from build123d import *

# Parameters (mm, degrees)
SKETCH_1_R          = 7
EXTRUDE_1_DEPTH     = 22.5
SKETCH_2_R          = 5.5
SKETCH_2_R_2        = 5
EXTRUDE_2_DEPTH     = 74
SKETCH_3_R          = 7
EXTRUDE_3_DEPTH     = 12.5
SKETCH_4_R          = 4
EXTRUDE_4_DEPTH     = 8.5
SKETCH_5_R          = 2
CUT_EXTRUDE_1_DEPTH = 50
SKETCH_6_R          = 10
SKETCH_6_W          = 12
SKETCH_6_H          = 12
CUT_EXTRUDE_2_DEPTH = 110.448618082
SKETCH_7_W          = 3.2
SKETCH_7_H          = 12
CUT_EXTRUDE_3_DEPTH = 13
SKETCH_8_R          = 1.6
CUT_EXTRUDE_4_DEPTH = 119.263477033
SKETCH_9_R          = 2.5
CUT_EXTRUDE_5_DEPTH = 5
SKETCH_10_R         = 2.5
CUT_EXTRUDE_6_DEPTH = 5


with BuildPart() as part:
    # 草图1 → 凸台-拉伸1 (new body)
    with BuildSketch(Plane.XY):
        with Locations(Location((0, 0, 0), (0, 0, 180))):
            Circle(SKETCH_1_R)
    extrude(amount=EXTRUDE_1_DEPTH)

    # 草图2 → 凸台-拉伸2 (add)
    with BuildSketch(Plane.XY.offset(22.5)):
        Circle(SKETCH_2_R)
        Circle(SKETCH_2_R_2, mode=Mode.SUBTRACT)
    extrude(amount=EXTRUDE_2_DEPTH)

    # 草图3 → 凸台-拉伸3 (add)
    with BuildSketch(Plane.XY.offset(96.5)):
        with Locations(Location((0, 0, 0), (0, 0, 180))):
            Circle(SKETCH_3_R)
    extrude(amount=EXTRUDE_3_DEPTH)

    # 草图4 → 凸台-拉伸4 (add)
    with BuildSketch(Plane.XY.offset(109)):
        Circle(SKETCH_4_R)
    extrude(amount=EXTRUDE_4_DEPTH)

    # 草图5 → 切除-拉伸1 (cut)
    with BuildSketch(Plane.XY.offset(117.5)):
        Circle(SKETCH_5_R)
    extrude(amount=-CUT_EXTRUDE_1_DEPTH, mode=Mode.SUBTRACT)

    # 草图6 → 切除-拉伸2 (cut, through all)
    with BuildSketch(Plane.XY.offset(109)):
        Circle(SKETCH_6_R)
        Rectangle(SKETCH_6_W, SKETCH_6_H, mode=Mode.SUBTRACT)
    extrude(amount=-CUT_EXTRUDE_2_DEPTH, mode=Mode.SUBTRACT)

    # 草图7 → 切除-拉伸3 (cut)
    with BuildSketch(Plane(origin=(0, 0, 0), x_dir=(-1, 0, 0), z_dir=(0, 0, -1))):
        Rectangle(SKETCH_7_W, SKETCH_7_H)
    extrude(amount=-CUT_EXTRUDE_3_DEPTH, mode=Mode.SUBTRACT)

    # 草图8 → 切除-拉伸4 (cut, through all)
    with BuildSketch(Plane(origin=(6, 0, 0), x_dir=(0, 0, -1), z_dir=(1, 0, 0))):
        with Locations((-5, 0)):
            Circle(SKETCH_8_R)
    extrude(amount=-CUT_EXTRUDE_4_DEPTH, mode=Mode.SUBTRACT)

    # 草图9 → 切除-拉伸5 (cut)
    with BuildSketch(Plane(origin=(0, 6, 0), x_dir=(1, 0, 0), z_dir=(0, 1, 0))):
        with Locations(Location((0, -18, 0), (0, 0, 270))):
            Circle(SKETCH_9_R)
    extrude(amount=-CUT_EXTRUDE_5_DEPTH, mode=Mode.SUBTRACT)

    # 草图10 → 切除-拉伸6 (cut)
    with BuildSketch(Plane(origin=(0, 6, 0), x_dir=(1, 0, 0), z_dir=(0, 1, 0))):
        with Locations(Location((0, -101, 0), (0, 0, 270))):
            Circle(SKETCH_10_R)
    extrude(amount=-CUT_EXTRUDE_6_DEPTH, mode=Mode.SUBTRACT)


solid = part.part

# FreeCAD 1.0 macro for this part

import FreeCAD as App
import Part
import Sketcher


def add_polygon(sketch, points):
    """Adds a closed chain of lines whose ends are joined by coincident constraints."""
    first, n = sketch.GeometryCount, len(points)
    for a, b in zip(points, points[1:] + points[:1]):
        sketch.addGeometry(Part.LineSegment(App.Vector(*a, 0), App.Vector(*b, 0)), False)
    for i in range(n):
        sketch.addConstraint(Sketcher.Constraint("Coincident", first + i, 2, first + (i + 1) % n, 1))

doc = App.newDocument("Part")
body = doc.addObject("PartDesign::Body", "Body")

sketch1 = body.newObject("Sketcher::SketchObject", "Sketch")
sketch1.AttachmentSupport = (doc.getObject("XY_Plane"), [""])
sketch1.MapMode = "FlatFace"
sketch1.addGeometry(Part.Circle(App.Vector(0, 0, 0), App.Vector(0, 0, 1), 7), False)
sketch1.addConstraint([
    Sketcher.Constraint("Coincident", 0, 3, -1, 1),
    Sketcher.Constraint("Diameter", 0, 14.0),
])
pad1 = body.newObject("PartDesign::Pad", "Pad")
pad1.Profile = sketch1
pad1.Length = 22.5

sketch2 = body.newObject("Sketcher::SketchObject", "Sketch001")
sketch2.AttachmentSupport = (doc.getObject("XY_Plane"), [""])
sketch2.MapMode = "FlatFace"
sketch2.AttachmentOffset = App.Placement(App.Vector(0, 0, 22.5), App.Rotation())
sketch2.addGeometry([
    Part.Circle(App.Vector(0, 0, 0), App.Vector(0, 0, 1), 6),
    Part.Circle(App.Vector(0, 0, 0), App.Vector(0, 0, 1), 5),
], False)
sketch2.addConstraint([
    Sketcher.Constraint("Coincident", 0, 3, -1, 1),
    Sketcher.Constraint("Coincident", 1, 3, -1, 1),
    Sketcher.Constraint("Diameter", 0, 11.0),
    Sketcher.Constraint("Diameter", 1, 10.0),
])
pad2 = body.newObject("PartDesign::Pad", "Pad001")
pad2.Profile = sketch2
pad2.Length = 74

sketch3 = body.newObject("Sketcher::SketchObject", "Sketch002")
sketch3.AttachmentSupport = (doc.getObject("XY_Plane"), [""])
sketch3.MapMode = "FlatFace"
sketch3.AttachmentOffset = App.Placement(App.Vector(0, 0, 96.5), App.Rotation())
sketch3.addGeometry(Part.Circle(App.Vector(0, 0, 0), App.Vector(0, 0, 1), 7), False)
sketch3.addConstraint([
    Sketcher.Constraint("Coincident", 0, 3, -1, 1),
    Sketcher.Constraint("Diameter", 0, 14.0),
])
pad3 = body.newObject("PartDesign::Pad", "Pad002")
pad3.Profile = sketch3
pad3.Length = 12.5

sketch4 = body.newObject("Sketcher::SketchObject", "Sketch003")
sketch4.AttachmentSupport = (doc.getObject("XY_Plane"), [""])
sketch4.MapMode = "FlatFace"
sketch4.AttachmentOffset = App.Placement(App.Vector(0, 0, 109), App.Rotation())
sketch4.addGeometry(Part.Circle(App.Vector(0, 0, 0), App.Vector(0, 0, 1), 4), False)
sketch4.addConstraint([
    Sketcher.Constraint("Coincident", 0, 3, -1, 1),
    Sketcher.Constraint("Diameter", 0, 8.0),
])
pad4 = body.newObject("PartDesign::Pad", "Pad003")
pad4.Profile = sketch4
pad4.Length = 8.5

sketch5 = body.newObject("Sketcher::SketchObject", "Sketch004")
sketch5.AttachmentSupport = (doc.getObject("XY_Plane"), [""])
sketch5.MapMode = "FlatFace"
sketch5.AttachmentOffset = App.Placement(App.Vector(0, 0, 117.5), App.Rotation())
sketch5.addGeometry(Part.Circle(App.Vector(0, 0, 0), App.Vector(0, 0, 1), 2), False)
sketch5.addConstraint([
    Sketcher.Constraint("Coincident", 0, 3, -1, 1),
    Sketcher.Constraint("Diameter", 0, 4.0),
])
pocket1 = body.newObject("PartDesign::Pocket", "Pocket")
pocket1.Profile = sketch5
pocket1.Length = 50

sketch6 = body.newObject("Sketcher::SketchObject", "Sketch005")
sketch6.AttachmentSupport = (doc.getObject("XY_Plane"), [""])
sketch6.MapMode = "FlatFace"
sketch6.AttachmentOffset = App.Placement(App.Vector(0, 0, 109), App.Rotation())
sketch6.addGeometry(Part.Circle(App.Vector(0, 0, 0), App.Vector(0, 0, 1), 10), False)
add_polygon(sketch6, [(6, -6), (-6, -6), (-6, 6), (6, 6)])
sketch6.addConstraint([
    Sketcher.Constraint("Horizontal", 1),
    Sketcher.Constraint("Vertical", 2),
    Sketcher.Constraint("Horizontal", 3),
    Sketcher.Constraint("Vertical", 4),
    Sketcher.Constraint("Coincident", 0, 3, -1, 1),
    Sketcher.Constraint("Symmetric", 1, 2, 3, 2, -1, 1),
    Sketcher.Constraint("Equal", 3, 2),
    Sketcher.Constraint("Diameter", 0, 20.0),
    Sketcher.Constraint("DistanceX", 1, 2, 1, 1, 12.0),
])
pocket2 = body.newObject("PartDesign::Pocket", "Pocket001")
pocket2.Profile = sketch6
pocket2.Type = "ThroughAll"

sketch7 = body.newObject("Sketcher::SketchObject", "Sketch006")
sketch7.AttachmentSupport = (doc.getObject("XY_Plane"), [""])
sketch7.MapMode = "FlatFace"
add_polygon(sketch7, [(1.6, 6), (1.6, -6), (-1.6, -6), (-1.6, 6)])
sketch7.addConstraint([
    Sketcher.Constraint("Vertical", 0),
    Sketcher.Constraint("Horizontal", 1),
    Sketcher.Constraint("Vertical", 2),
    Sketcher.Constraint("Horizontal", 3),
    Sketcher.Constraint("Symmetric", 0, 2, 2, 2, -1, 1),
    Sketcher.Constraint("DistanceY", 0, 2, 0, 1, 12.0),
    Sketcher.Constraint("DistanceX", 1, 2, 1, 1, 3.2),
])
pocket3 = body.newObject("PartDesign::Pocket", "Pocket002")
pocket3.Profile = sketch7
pocket3.Length = 13
pocket3.Reversed = True

sketch8 = body.newObject("Sketcher::SketchObject", "Sketch007")
sketch8.AttachmentSupport = (doc.getObject("YZ_Plane"), [""])
sketch8.MapMode = "FlatFace"
sketch8.AttachmentOffset = App.Placement(App.Vector(0, 0, 6), App.Rotation())
sketch8.addGeometry(Part.Circle(App.Vector(0, 5, 0), App.Vector(0, 0, 1), 1.6), False)
sketch8.addConstraint([
    Sketcher.Constraint("PointOnObject", 0, 3, -2),
    Sketcher.Constraint("Diameter", 0, 3.2),
    Sketcher.Constraint("DistanceY", -1, 1, 0, 3, 5.0),
])
pocket4 = body.newObject("PartDesign::Pocket", "Pocket003")
pocket4.Profile = sketch8
pocket4.Type = "ThroughAll"

sketch9 = body.newObject("Sketcher::SketchObject", "Sketch008")
sketch9.AttachmentSupport = (doc.getObject("XZ_Plane"), [""])
sketch9.MapMode = "FlatFace"
sketch9.AttachmentOffset = App.Placement(App.Vector(0, 0, -6), App.Rotation())
sketch9.addGeometry(Part.Circle(App.Vector(0, 18, 0), App.Vector(0, 0, 1), 2.5), False)
sketch9.addConstraint([
    Sketcher.Constraint("PointOnObject", 0, 3, -2),
    Sketcher.Constraint("Diameter", 0, 5.0),
    Sketcher.Constraint("DistanceY", -1, 1, 0, 3, 18.0),
])
pocket5 = body.newObject("PartDesign::Pocket", "Pocket004")
pocket5.Profile = sketch9
pocket5.Length = 5
pocket5.Reversed = True

sketch10 = body.newObject("Sketcher::SketchObject", "Sketch009")
sketch10.AttachmentSupport = (doc.getObject("XZ_Plane"), [""])
sketch10.MapMode = "FlatFace"
sketch10.AttachmentOffset = App.Placement(App.Vector(0, 0, -6), App.Rotation())
sketch10.addGeometry(Part.Circle(App.Vector(0, 101, 0), App.Vector(0, 0, 1), 2.5), False)
sketch10.addConstraint([
    Sketcher.Constraint("PointOnObject", 0, 3, -2),
    Sketcher.Constraint("Diameter", 0, 5.0),
    Sketcher.Constraint("DistanceY", -1, 1, 0, 3, 101.0),
])
pocket6 = body.newObject("PartDesign::Pocket", "Pocket005")
pocket6.Profile = sketch10
pocket6.Length = 5
pocket6.Reversed = True

doc.recompute()
